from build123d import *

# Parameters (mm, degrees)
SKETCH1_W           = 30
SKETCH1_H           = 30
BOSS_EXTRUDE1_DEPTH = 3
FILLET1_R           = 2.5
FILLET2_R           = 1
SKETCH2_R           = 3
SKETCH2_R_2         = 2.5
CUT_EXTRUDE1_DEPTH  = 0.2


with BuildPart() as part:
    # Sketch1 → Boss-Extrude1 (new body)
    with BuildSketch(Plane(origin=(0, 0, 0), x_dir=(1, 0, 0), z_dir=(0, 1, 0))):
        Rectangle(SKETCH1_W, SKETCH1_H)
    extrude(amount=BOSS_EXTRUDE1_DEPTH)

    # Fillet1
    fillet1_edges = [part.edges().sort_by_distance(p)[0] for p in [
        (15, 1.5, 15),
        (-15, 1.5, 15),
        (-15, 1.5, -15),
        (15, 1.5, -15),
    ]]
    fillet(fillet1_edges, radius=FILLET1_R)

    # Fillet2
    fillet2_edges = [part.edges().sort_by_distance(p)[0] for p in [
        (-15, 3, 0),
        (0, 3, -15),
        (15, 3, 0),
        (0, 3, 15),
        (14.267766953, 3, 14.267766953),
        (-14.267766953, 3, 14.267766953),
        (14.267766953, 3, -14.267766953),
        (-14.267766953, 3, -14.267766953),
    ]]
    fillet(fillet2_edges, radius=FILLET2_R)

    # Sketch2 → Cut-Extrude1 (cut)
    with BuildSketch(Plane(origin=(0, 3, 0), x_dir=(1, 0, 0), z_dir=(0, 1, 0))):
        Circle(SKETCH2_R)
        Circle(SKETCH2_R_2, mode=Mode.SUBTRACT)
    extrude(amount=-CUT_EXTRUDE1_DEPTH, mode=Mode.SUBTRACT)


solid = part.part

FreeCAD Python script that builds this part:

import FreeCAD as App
import Part
import Sketcher
from FreeCAD import Vector


def edges_at(feature, points):
    """Names of the edges that pass closest to the given points."""
    edges = feature.Shape.Edges
    near = lambda p: min(range(len(edges)), key=lambda i: edges[i].distToShape(Part.Vertex(*p))[0])
    return sorted({f"Edge{near(p) + 1}" for p in points})

doc = App.newDocument("Part")
body = doc.addObject("PartDesign::Body", "Body")

# Sketch on XZ plane
sketch1 = doc.addObject("Sketcher::SketchObject", "Sketch")
body.addObject(sketch1)
sketch1.AttachmentSupport = (doc.XZ_Plane, [""])
sketch1.MapMode = "FlatFace"
sketch1.addGeometry(Part.LineSegment(Vector(-15, -15, 0), Vector(-15, 15, 0)), False)
sketch1.addGeometry(Part.LineSegment(Vector(-15, 15, 0), Vector(15, 15, 0)), False)
sketch1.addGeometry(Part.LineSegment(Vector(15, 15, 0), Vector(15, -15, 0)), False)
sketch1.addGeometry(Part.LineSegment(Vector(15, -15, 0), Vector(-15, -15, 0)), False)
sketch1.addConstraint(Sketcher.Constraint("Coincident", 0, 2, 1, 1))
sketch1.addConstraint(Sketcher.Constraint("Coincident", 1, 2, 2, 1))
sketch1.addConstraint(Sketcher.Constraint("Coincident", 2, 2, 3, 1))
sketch1.addConstraint(Sketcher.Constraint("Coincident", 3, 2, 0, 1))
sketch1.addConstraint(Sketcher.Constraint("Vertical", 0))
sketch1.addConstraint(Sketcher.Constraint("Horizontal", 1))
sketch1.addConstraint(Sketcher.Constraint("Vertical", 2))
sketch1.addConstraint(Sketcher.Constraint("Horizontal", 3))
sketch1.addConstraint(Sketcher.Constraint("Symmetric", 0, 2, 2, 2, -1, 1))
sketch1.addConstraint(Sketcher.Constraint("Equal", 3, 0))
sketch1.addConstraint(Sketcher.Constraint("DistanceX", 1, 1, 1, 2, 30.0))
pad1 = doc.addObject("PartDesign::Pad", "Pad")
body.addObject(pad1)
pad1.Profile = sketch1
pad1.Length = 3
pad1.Reversed = True
doc.recompute()

fillet = doc.addObject("PartDesign::Fillet", "Fillet")
body.addObject(fillet)
fillet.Base = (pad1, edges_at(pad1, [
    (15, 1.5, 15),
    (-15, 1.5, 15),
    (-15, 1.5, -15),
    (15, 1.5, -15),
]))
fillet.Radius = 2.5
doc.recompute()

fillet2 = doc.addObject("PartDesign::Fillet", "Fillet001")
body.addObject(fillet2)
fillet2.Base = (fillet, edges_at(fillet, [
    (-15, 3, 0),
    (0, 3, -15),
    (15, 3, 0),
    (0, 3, 15),
    (14.268, 3, 14.268),
    (-14.268, 3, 14.268),
    (14.268, 3, -14.268),
    (-14.268, 3, -14.268),
]))
fillet2.Radius = 1

# Sketch on XZ plane
sketch2 = doc.addObject("Sketcher::SketchObject", "Sketch001")
body.addObject(sketch2)
sketch2.AttachmentSupport = (doc.XZ_Plane, [""])
sketch2.MapMode = "FlatFace"
sketch2.AttachmentOffset = App.Placement(Vector(0, 0, -3), App.Rotation())
sketch2.addGeometry(Part.Circle(Vector(0, 0, 0), Vector(0, 0, 1), 3), False)
sketch2.addGeometry(Part.Circle(Vector(0, 0, 0), Vector(0, 0, 1), 2.5), False)
sketch2.addConstraint(Sketcher.Constraint("Coincident", 0, 3, -1, 1))
sketch2.addConstraint(Sketcher.Constraint("Coincident", 1, 3, -1, 1))
sketch2.addConstraint(Sketcher.Constraint("Diameter", 0, 6.0))
sketch2.addConstraint(Sketcher.Constraint("Diameter", 1, 5.0))
pocket1 = doc.addObject("PartDesign::Pocket", "Pocket")
body.addObject(pocket1)
pocket1.Profile = sketch2
pocket1.Length = 0.2
pocket1.Reversed = True

doc.recompute()
